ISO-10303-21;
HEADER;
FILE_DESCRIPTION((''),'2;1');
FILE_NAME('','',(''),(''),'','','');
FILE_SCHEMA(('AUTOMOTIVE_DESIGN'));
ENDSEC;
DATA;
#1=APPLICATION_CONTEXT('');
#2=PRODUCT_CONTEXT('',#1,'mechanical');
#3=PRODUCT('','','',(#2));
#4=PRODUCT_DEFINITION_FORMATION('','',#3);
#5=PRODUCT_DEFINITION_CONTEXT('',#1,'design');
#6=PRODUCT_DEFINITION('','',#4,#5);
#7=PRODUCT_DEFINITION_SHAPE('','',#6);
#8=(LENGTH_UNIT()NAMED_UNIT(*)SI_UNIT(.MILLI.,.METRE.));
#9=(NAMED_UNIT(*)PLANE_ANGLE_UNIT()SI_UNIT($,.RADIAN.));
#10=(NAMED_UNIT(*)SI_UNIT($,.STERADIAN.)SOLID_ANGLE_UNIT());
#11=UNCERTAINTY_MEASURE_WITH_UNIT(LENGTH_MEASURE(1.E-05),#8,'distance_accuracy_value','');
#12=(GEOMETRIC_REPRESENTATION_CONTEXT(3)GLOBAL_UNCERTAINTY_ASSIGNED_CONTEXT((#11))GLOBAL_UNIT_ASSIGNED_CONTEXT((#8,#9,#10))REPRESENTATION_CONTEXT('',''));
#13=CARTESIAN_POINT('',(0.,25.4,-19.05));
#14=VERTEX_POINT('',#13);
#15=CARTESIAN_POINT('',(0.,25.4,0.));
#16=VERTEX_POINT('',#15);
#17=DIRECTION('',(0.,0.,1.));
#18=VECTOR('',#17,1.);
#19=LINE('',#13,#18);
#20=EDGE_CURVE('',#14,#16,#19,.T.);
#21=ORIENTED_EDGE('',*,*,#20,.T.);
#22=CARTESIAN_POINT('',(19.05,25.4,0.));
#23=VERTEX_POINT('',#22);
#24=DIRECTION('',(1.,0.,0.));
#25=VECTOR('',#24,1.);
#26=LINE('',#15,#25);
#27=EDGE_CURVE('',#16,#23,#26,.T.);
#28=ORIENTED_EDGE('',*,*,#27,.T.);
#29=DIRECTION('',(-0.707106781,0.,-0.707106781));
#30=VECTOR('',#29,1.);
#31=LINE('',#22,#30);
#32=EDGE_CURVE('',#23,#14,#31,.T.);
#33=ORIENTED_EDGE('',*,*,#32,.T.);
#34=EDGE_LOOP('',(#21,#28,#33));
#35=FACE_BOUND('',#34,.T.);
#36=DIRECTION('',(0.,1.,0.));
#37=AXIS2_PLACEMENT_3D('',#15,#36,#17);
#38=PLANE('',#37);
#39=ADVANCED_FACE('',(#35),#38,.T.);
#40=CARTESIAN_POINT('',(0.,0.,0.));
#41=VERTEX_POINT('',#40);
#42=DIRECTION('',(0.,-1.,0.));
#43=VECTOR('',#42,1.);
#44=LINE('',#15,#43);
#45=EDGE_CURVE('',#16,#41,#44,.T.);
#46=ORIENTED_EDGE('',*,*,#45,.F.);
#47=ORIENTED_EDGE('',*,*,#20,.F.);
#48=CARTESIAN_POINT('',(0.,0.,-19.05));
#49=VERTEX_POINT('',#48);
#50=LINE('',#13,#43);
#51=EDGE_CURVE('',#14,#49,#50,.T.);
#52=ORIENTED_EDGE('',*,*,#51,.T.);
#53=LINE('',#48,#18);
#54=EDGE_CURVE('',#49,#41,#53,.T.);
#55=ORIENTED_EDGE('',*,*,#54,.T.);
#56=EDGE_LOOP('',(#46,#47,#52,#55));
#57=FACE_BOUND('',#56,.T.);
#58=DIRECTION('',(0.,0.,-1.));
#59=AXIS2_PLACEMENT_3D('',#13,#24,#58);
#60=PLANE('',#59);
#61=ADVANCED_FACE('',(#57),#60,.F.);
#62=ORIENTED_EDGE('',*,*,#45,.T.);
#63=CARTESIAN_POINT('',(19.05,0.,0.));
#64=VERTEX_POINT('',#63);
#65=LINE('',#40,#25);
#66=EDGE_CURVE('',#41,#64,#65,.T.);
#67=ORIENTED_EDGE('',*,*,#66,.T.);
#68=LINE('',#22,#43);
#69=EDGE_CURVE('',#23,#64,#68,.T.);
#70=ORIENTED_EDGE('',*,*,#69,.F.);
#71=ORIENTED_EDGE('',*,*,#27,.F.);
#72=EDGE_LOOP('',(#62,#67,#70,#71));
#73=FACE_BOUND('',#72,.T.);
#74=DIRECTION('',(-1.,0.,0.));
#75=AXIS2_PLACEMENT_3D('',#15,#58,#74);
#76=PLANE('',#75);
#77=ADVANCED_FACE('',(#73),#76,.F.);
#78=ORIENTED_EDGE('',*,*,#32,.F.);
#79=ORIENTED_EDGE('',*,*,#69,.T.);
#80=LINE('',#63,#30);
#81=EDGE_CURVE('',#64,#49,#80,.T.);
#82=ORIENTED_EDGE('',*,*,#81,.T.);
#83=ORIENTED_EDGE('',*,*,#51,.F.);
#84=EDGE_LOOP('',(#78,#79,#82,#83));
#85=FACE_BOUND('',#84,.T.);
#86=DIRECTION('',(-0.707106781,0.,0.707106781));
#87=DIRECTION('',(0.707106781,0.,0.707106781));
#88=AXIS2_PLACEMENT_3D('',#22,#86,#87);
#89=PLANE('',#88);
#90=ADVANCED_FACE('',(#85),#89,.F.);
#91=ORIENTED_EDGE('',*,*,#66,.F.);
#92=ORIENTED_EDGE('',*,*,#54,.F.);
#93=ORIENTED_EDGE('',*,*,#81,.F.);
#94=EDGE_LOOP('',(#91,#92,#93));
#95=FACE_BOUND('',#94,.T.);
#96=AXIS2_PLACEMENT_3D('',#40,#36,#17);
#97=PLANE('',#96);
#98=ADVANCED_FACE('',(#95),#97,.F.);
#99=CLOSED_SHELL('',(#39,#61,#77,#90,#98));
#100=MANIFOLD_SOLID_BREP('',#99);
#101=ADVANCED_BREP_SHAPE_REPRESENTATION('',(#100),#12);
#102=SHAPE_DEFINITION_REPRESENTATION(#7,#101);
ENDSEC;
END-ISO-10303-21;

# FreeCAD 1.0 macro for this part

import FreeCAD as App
import Part
import Sketcher

V = App.Vector
Q = App.Units.Quantity

doc = App.newDocument("Part")
body = doc.addObject("PartDesign::Body", "Body")

# Sketch on XZ plane
sketch1 = body.newObject("Sketcher::SketchObject", "Sketch")
sketch1.AttachmentSupport = (doc.getObject("XZ_Plane"), [""])
sketch1.MapMode = "FlatFace"
sketch1.addGeometry([
    Part.LineSegment(V(0, -19, 0), V(0, 0, 0)),
    Part.LineSegment(V(0, 0, 0), V(19, 0, 0)),
    Part.LineSegment(V(19, 0, 0), V(0, -19, 0)),
], False)
sketch1.addConstraint([
    Sketcher.Constraint("Coincident", 0, 2, 1, 1),
    Sketcher.Constraint("Coincident", 1, 2, 2, 1),
    Sketcher.Constraint("Coincident", 2, 2, 0, 1),
    Sketcher.Constraint("Vertical", 0),
    Sketcher.Constraint("Horizontal", 1),
    Sketcher.Constraint("Coincident", 0, 2, -1, 1),
    Sketcher.Constraint("Equal", 1, 0),
    Sketcher.Constraint("DistanceX", 1, 1, 1, 2, Q("0.75 in")),
])
pad1 = body.newObject("PartDesign::Pad", "Pad")
pad1.Profile = sketch1
pad1.Length = Q("1 in")
pad1.Reversed = True

doc.recompute()
